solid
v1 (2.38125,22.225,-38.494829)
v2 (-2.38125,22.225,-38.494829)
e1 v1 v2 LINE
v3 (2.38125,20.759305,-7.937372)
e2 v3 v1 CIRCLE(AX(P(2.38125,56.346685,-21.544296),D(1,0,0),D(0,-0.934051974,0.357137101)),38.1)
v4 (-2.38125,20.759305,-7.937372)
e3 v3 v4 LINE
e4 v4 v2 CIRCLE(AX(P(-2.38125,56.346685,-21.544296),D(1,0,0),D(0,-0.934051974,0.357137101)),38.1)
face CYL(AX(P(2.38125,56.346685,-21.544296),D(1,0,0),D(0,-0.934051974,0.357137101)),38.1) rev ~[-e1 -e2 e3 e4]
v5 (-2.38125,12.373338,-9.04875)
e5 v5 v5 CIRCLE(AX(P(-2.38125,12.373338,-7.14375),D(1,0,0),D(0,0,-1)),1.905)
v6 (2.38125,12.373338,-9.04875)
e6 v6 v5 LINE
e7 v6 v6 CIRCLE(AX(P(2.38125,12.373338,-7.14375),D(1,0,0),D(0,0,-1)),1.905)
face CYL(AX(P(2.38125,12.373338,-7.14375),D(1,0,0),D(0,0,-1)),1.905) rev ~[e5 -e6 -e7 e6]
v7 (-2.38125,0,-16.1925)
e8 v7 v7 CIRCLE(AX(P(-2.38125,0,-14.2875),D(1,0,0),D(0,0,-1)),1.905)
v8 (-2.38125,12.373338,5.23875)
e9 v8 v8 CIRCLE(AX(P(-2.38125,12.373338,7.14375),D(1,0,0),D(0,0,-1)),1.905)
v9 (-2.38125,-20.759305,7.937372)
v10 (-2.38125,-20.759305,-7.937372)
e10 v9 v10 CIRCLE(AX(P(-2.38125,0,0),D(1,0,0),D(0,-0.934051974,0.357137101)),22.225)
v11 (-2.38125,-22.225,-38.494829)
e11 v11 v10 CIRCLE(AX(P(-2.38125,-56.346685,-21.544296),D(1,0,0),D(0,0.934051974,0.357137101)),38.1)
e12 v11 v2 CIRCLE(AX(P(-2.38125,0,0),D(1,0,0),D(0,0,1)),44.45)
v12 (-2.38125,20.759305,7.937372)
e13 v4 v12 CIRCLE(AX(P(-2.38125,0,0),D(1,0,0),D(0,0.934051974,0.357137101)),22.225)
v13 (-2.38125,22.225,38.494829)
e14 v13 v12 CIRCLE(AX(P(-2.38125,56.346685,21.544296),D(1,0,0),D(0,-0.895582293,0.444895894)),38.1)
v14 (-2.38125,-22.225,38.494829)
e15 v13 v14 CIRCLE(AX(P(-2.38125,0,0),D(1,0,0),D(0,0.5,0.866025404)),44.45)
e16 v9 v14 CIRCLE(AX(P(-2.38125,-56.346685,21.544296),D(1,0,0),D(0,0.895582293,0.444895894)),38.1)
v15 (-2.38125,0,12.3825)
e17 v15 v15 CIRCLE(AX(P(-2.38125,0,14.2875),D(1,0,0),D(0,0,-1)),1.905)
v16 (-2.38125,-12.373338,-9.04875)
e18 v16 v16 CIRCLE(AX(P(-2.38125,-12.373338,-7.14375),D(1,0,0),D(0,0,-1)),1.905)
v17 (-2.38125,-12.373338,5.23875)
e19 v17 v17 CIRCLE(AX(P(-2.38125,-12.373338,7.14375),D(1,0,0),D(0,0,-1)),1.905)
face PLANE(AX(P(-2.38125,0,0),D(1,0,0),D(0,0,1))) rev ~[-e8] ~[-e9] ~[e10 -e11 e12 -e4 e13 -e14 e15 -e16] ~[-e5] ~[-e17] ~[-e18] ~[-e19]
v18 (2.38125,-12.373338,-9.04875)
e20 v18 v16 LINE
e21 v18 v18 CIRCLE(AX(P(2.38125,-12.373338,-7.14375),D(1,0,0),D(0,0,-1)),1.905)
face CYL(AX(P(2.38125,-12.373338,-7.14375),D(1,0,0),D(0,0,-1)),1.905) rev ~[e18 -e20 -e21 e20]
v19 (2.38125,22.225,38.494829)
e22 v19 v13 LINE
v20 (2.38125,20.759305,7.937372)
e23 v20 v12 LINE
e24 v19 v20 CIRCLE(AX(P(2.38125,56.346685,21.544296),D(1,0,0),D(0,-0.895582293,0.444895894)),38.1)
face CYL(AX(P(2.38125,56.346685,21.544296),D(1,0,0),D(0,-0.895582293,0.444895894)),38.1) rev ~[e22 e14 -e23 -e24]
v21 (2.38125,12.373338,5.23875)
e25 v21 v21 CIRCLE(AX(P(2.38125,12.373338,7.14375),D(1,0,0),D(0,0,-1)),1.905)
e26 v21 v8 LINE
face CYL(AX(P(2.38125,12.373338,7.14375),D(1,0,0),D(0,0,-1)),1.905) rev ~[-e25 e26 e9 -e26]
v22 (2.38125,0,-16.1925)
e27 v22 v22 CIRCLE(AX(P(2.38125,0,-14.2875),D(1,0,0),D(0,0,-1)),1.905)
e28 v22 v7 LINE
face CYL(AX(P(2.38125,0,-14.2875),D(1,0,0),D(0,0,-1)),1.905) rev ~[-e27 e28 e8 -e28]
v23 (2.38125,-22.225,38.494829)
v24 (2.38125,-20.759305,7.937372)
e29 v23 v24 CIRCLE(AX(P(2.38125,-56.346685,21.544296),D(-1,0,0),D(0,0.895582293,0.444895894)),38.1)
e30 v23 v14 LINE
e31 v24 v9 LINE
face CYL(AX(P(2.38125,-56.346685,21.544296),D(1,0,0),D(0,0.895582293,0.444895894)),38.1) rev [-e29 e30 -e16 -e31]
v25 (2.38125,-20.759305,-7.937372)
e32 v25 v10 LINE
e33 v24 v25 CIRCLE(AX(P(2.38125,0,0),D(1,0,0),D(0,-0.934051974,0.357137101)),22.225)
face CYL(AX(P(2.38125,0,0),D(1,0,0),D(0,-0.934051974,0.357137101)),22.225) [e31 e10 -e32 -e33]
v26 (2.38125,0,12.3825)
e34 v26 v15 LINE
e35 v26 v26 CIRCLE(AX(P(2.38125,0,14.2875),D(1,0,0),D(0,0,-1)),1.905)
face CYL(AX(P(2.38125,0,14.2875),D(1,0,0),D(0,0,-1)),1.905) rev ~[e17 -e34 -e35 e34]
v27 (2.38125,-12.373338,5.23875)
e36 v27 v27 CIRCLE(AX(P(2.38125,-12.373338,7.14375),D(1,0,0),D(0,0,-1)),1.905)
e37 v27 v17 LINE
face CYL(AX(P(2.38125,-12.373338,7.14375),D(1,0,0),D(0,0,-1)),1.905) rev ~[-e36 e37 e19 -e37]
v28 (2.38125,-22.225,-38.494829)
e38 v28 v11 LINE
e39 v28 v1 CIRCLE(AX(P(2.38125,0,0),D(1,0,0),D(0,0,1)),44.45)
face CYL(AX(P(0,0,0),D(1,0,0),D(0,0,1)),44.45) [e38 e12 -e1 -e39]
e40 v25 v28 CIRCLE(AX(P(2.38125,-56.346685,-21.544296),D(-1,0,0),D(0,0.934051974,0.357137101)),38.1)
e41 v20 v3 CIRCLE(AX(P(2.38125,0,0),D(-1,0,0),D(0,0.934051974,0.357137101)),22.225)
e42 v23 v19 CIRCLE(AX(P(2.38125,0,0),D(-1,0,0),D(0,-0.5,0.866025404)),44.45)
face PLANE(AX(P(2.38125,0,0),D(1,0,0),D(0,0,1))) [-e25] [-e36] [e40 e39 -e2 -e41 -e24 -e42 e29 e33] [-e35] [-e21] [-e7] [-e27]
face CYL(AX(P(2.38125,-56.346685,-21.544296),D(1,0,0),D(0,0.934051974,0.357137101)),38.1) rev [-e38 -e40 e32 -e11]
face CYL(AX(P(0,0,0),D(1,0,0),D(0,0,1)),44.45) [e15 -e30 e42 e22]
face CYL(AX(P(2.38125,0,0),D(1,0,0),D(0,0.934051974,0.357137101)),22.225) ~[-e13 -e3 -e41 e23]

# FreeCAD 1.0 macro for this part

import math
import FreeCAD as App
import Part
import Sketcher

V = App.Vector
Q = App.Units.Quantity

doc = App.newDocument("Part")
params = doc.addObject("Spreadsheet::Sheet", "Params")
for row, (alias, value) in enumerate([
    ("sketch1_diameter", "3.5 in"),
    ("pad1_length", "0.1875 in"),
    ("sketch2_radius", "1.5 in"),
    ("sketch2_radius2", "1.75 in"),
    ("sketch2_radius3", "0.875 in"),
    ("sketch3_diameter", "0.15 in"),
], start=1):
    params.set(f"A{row}", alias)
    params.set(f"B{row}", "=" + value)
    params.setAlias(f"B{row}", alias)

body = doc.addObject("PartDesign::Body", "Body")

# Sketch on YZ plane
sketch1 = body.newObject("Sketcher::SketchObject", "Sketch")
sketch1.AttachmentSupport = (doc.getObject("YZ_Plane"), [""])
sketch1.MapMode = "FlatFace"
sketch1.addGeometry(Part.Circle(V(0, 0, 0), V(0, 0, 1), 44), False)
sketch1.addConstraint(Sketcher.Constraint("Coincident", 0, 3, -1, 1))
sketch1.addConstraint(Sketcher.Constraint("Diameter", 0, Q("3.5 in")))
sketch1.setExpression("Constraints[1]", "Params.sketch1_diameter")
pad1 = body.newObject("PartDesign::Pad", "Pad")
pad1.Profile = sketch1
pad1.setExpression("Length", "Params.pad1_length")
pad1.Midplane = True

# Sketch on YZ plane
sketch2 = body.newObject("Sketcher::SketchObject", "Sketch001")
sketch2.AttachmentSupport = (doc.getObject("YZ_Plane"), [""])
sketch2.MapMode = "FlatFace"
sketch2.AttachmentOffset = App.Placement(V(0, 0, 0.09375 * 25.4), App.Rotation())
sketch2.addGeometry(Part.ArcOfCircle(Part.Circle(V(0, 0, 0), V(0, 0, 1), 22), math.radians(159), math.radians(201)), False)
sketch2.addGeometry(Part.ArcOfCircle(Part.Circle(V(-56, 22, 0), V(0, 0, 1), 38), math.radians(-21), math.radians(26)), False)
sketch2.addGeometry(Part.ArcOfCircle(Part.Circle(V(0, 0, 0), V(0, 0, 1), 44), math.radians(120), math.radians(240)), False)
sketch2.addGeometry(Part.ArcOfCircle(Part.Circle(V(-56, -22, 0), V(0, 0, 1), 38), math.radians(-26), math.radians(21)), False)
sketch2.addGeometry(Part.ArcOfCircle(Part.Circle(V(56, 22, 0), V(0, 0, 1), 38), math.radians(154), math.radians(201)), False)
sketch2.addGeometry(Part.ArcOfCircle(Part.Circle(V(0, 0, 0), V(0, 0, 1), 22), math.radians(-21), math.radians(21)), False)
sketch2.addGeometry(Part.ArcOfCircle(Part.Circle(V(56, -22, 0), V(0, 0, 1), 38), math.radians(159), math.radians(206)), False)
sketch2.addGeometry(Part.ArcOfCircle(Part.Circle(V(0, 0, 0), V(0, 0, 1), 44), math.radians(-60), math.radians(60)), False)
sketch2.addConstraint(Sketcher.Constraint("Tangent", 0, 1, 1, 1))
sketch2.addConstraint(Sketcher.Constraint("Coincident", 1, 2, 2, 1))
sketch2.addConstraint(Sketcher.Constraint("Coincident", 2, 2, 3, 1))
sketch2.addConstraint(Sketcher.Constraint("Tangent", 3, 2, 0, 2))
sketch2.addConstraint(Sketcher.Constraint("Tangent", 4, 2, 5, 2))
sketch2.addConstraint(Sketcher.Constraint("Tangent", 5, 1, 6, 1))
sketch2.addConstraint(Sketcher.Constraint("Coincident", 6, 2, 7, 1))
sketch2.addConstraint(Sketcher.Constraint("Coincident", 7, 2, 4, 1))
sketch2.addConstraint(Sketcher.Constraint("Coincident", 0, 3, -1, 1))
sketch2.addConstraint(Sketcher.Constraint("Coincident", 2, 3, -1, 1))
sketch2.addConstraint(Sketcher.Constraint("Coincident", 5, 3, -1, 1))
sketch2.addConstraint(Sketcher.Constraint("Coincident", 7, 3, -1, 1))
sketch2.addConstraint(Sketcher.Constraint("Equal", 1, 3))
sketch2.addConstraint(Sketcher.Constraint("Equal", 3, 4))
sketch2.addConstraint(Sketcher.Constraint("Equal", 0, 5))
sketch2.addConstraint(Sketcher.Constraint("Equal", 4, 6))
sketch2.addConstraint(Sketcher.Constraint("Equal", 2, 7))
sketch2.addConstraint(Sketcher.Constraint("Horizontal", 1, 3, 4, 3))
sketch2.addConstraint(Sketcher.Constraint("Horizontal", 3, 3, 6, 3))
sketch2.addConstraint(Sketcher.Constraint("Vertical", 1, 3, 3, 3))
sketch2.addConstraint(Sketcher.Constraint("Radius", 1, Q("1.5 in")))
sketch2.addConstraint(Sketcher.Constraint("Radius", 2, Q("1.75 in")))
sketch2.addConstraint(Sketcher.Constraint("Radius", 0, Q("0.875 in")))
sketch2.addConstraint(Sketcher.Constraint("DistanceX", 1, 2, -1, 1, Q("0.875 in")))
sketch2.setExpression("Constraints[20]", "Params.sketch2_radius")
sketch2.setExpression("Constraints[21]", "Params.sketch2_radius2")
sketch2.setExpression("Constraints[22]", "Params.sketch2_radius3")
pocket1 = body.newObject("PartDesign::Pocket", "Pocket")
pocket1.Profile = sketch2
pocket1.Type = "ThroughAll"

# Sketch on YZ plane
sketch3 = body.newObject("Sketcher::SketchObject", "Sketch002")
sketch3.AttachmentSupport = (doc.getObject("YZ_Plane"), [""])
sketch3.MapMode = "FlatFace"
sketch3.AttachmentOffset = App.Placement(V(0, 0, 0.09375 * 25.4), App.Rotation())
sketch3.addGeometry(Part.Circle(V(0, 14.3, 0), V(0, 0, 1), 1.9), False)
sketch3.addGeometry(Part.Circle(V(12.4, 7.1, 0), V(0, 0, 1), 1.9), False)
sketch3.addGeometry(Part.Circle(V(12.4, -7.1, 0), V(0, 0, 1), 1.9), False)
sketch3.addGeometry(Part.Circle(V(0, -14.3, 0), V(0, 0, 1), 1.9), False)
sketch3.addGeometry(Part.Circle(V(-12.4, -7.1, 0), V(0, 0, 1), 1.9), False)
sketch3.addGeometry(Part.Circle(V(-12.4, 7.1, 0), V(0, 0, 1), 1.9), False)
sketch3.addConstraint(Sketcher.Constraint("Equal", 0, 1))
sketch3.addConstraint(Sketcher.Constraint("Equal", 1, 2))
sketch3.addConstraint(Sketcher.Constraint("Equal", 2, 3))
sketch3.addConstraint(Sketcher.Constraint("Equal", 3, 4))
sketch3.addConstraint(Sketcher.Constraint("Equal", 4, 5))
sketch3.addConstraint(Sketcher.Constraint("Symmetric", 0, 3, 3, 3, -1, 1))
sketch3.addConstraint(Sketcher.Constraint("Symmetric", 1, 3, 4, 3, -1, 1))
sketch3.addConstraint(Sketcher.Constraint("Symmetric", 2, 3, 5, 3, -1, 1))
sketch3.addConstraint(Sketcher.Constraint("Symmetric", 2, 3, 4, 3, -2))
sketch3.addConstraint(Sketcher.Constraint("PointOnObject", 0, 3, -2))
sketch3.addConstraint(Sketcher.Constraint("Diameter", 0, Q("0.15 in")))
sketch3.addConstraint(Sketcher.Constraint("DistanceY", -1, 1, 0, 3, Q("0.5625 in")))
sketch3.addConstraint(Sketcher.Constraint("DistanceY", -1, 1, 1, 3, Q("0.28125 in")))
sketch3.addConstraint(Sketcher.Constraint("DistanceX", -1, 1, 1, 3, Q("12.373338 mm")))
sketch3.setExpression("Constraints[10]", "Params.sketch3_diameter")
pocket2 = body.newObject("PartDesign::Pocket", "Pocket001")
pocket2.Profile = sketch3
pocket2.Type = "ThroughAll"

doc.recompute()
